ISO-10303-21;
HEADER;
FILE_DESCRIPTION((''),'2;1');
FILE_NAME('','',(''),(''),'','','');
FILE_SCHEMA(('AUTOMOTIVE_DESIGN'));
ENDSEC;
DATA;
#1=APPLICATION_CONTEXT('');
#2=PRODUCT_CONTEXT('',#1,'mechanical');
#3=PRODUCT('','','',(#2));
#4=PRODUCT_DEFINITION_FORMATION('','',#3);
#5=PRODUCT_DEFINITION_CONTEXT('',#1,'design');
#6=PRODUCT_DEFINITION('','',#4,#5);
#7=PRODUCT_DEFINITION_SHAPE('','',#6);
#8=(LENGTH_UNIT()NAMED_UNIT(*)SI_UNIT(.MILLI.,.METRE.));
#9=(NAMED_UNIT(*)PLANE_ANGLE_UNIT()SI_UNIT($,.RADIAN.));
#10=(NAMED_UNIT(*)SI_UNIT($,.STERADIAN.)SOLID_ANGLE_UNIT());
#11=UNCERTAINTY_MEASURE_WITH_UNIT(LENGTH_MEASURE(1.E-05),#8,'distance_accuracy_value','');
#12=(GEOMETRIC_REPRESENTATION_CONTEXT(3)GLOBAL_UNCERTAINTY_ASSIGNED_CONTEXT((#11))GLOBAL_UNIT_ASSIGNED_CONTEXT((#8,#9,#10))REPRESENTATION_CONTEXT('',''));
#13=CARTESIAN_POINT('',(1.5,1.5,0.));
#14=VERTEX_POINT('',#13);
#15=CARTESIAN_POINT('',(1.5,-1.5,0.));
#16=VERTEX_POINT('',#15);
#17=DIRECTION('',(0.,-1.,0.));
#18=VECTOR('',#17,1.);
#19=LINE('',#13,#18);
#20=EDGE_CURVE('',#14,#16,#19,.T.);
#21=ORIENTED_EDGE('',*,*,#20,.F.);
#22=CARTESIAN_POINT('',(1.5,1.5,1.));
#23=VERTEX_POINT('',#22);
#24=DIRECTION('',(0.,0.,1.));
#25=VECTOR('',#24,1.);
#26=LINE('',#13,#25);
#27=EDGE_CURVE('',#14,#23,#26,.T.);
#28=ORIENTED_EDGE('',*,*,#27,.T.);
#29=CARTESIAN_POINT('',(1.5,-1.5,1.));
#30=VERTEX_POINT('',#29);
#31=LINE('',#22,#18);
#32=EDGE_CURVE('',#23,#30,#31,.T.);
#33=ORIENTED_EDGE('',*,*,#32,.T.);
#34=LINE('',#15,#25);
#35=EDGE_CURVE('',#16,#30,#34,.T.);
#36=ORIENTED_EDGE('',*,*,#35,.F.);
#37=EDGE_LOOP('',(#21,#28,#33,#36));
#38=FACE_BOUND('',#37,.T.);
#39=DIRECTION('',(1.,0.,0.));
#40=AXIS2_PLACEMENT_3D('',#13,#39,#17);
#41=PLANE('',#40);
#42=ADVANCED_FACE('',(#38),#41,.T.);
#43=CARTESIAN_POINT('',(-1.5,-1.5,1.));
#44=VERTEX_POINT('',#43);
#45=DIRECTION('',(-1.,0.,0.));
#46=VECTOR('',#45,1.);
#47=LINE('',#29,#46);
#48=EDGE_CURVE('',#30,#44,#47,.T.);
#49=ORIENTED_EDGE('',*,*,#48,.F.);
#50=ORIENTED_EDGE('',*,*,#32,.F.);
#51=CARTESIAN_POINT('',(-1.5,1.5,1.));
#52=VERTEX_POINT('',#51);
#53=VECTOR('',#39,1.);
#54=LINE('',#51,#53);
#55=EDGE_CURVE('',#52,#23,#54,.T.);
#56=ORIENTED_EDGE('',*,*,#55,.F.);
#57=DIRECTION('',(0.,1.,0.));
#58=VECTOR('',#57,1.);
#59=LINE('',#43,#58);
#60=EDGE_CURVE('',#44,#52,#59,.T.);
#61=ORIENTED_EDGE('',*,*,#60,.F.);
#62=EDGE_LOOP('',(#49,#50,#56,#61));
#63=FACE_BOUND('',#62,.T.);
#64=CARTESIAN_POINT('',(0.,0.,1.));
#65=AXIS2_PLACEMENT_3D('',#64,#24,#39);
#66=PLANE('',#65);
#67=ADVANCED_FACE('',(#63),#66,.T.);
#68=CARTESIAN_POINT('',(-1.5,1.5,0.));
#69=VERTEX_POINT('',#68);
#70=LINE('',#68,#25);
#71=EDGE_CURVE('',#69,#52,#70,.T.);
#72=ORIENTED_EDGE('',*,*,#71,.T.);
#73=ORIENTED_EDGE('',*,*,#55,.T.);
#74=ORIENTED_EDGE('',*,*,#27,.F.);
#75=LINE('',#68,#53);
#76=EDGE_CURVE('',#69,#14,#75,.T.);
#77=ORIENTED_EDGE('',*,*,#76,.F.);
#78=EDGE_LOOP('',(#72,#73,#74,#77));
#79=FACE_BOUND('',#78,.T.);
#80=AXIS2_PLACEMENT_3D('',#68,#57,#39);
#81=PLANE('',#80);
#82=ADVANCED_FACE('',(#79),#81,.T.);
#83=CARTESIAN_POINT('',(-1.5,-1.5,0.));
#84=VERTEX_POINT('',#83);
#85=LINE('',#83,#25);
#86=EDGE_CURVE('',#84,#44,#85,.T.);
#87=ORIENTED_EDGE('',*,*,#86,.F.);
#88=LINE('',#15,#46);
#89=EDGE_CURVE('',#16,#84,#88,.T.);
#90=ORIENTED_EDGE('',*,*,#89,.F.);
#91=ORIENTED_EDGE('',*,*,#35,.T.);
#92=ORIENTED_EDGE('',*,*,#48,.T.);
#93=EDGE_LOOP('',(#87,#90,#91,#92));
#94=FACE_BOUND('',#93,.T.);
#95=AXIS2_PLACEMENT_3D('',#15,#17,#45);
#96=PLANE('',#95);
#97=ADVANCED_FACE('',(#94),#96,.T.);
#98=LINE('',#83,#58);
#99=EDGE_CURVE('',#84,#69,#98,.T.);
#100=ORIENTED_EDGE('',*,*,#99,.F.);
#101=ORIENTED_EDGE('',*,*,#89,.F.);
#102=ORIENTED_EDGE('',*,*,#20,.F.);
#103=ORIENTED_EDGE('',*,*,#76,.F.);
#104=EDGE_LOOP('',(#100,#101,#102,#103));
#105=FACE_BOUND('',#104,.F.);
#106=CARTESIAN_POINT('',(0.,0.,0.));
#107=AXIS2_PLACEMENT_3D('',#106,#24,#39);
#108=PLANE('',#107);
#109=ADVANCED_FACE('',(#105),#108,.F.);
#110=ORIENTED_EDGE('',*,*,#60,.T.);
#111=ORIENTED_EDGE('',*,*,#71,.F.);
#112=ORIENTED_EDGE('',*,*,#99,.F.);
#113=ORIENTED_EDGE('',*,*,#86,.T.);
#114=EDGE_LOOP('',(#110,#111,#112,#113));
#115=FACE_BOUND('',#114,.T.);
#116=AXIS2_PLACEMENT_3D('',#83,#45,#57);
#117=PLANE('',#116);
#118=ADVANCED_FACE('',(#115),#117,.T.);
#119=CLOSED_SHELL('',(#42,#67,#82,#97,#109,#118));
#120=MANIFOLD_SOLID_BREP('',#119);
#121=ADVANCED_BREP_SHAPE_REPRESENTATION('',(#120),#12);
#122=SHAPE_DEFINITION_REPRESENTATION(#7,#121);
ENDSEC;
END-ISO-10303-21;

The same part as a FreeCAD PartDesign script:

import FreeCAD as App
import Part
import Sketcher
from FreeCAD import Vector
Q = App.Units.Quantity


def add_polygon(sketch, points):
    """Adds a closed chain of lines whose ends are joined by coincident constraints."""
    first, n = sketch.GeometryCount, len(points)
    for a, b in zip(points, points[1:] + points[:1]):
        sketch.addGeometry(Part.LineSegment(App.Vector(*a, 0), App.Vector(*b, 0)), False)
    for i in range(n):
        sketch.addConstraint(Sketcher.Constraint("Coincident", first + i, 2, first + (i + 1) % n, 1))

doc = App.newDocument("Part")
params = doc.addObject("Spreadsheet::Sheet", "Params")
for row, (alias, value) in enumerate([
    ("sketch1_width", "3 mm"),
    ("pad1_length", "1 mm"),
], start=1):
    params.set(f"A{row}", alias)
    params.set(f"B{row}", "=" + value)
    params.setAlias(f"B{row}", alias)

body = doc.addObject("PartDesign::Body", "Body")

# Sketch on XY plane
sketch1 = body.newObject("Sketcher::SketchObject", "Sketch")
sketch1.AttachmentSupport = (doc.getObject("XY_Plane"), [""])
sketch1.MapMode = "FlatFace"
add_polygon(sketch1, [(-1.5, 1.5), (-1.5, -1.5), (1.5, -1.5), (1.5, 1.5)])  # lines 0-3
sketch1.addConstraint([
    Sketcher.Constraint("Vertical", 0),
    Sketcher.Constraint("Horizontal", 1),
    Sketcher.Constraint("Vertical", 2),
    Sketcher.Constraint("Horizontal", 3),
    Sketcher.Constraint("Symmetric", 0, 2, 2, 2, -1, 1),
    Sketcher.Constraint("Equal", 3, 0),
    Sketcher.Constraint("DistanceX", 1, 1, 1, 2, Q("3 mm")),
])
sketch1.setExpression("Constraints[10]", "Params.sketch1_width")
pad1 = body.newObject("PartDesign::Pad", "Pad")
pad1.Profile = sketch1
pad1.setExpression("Length", "Params.pad1_length")

doc.recompute()
